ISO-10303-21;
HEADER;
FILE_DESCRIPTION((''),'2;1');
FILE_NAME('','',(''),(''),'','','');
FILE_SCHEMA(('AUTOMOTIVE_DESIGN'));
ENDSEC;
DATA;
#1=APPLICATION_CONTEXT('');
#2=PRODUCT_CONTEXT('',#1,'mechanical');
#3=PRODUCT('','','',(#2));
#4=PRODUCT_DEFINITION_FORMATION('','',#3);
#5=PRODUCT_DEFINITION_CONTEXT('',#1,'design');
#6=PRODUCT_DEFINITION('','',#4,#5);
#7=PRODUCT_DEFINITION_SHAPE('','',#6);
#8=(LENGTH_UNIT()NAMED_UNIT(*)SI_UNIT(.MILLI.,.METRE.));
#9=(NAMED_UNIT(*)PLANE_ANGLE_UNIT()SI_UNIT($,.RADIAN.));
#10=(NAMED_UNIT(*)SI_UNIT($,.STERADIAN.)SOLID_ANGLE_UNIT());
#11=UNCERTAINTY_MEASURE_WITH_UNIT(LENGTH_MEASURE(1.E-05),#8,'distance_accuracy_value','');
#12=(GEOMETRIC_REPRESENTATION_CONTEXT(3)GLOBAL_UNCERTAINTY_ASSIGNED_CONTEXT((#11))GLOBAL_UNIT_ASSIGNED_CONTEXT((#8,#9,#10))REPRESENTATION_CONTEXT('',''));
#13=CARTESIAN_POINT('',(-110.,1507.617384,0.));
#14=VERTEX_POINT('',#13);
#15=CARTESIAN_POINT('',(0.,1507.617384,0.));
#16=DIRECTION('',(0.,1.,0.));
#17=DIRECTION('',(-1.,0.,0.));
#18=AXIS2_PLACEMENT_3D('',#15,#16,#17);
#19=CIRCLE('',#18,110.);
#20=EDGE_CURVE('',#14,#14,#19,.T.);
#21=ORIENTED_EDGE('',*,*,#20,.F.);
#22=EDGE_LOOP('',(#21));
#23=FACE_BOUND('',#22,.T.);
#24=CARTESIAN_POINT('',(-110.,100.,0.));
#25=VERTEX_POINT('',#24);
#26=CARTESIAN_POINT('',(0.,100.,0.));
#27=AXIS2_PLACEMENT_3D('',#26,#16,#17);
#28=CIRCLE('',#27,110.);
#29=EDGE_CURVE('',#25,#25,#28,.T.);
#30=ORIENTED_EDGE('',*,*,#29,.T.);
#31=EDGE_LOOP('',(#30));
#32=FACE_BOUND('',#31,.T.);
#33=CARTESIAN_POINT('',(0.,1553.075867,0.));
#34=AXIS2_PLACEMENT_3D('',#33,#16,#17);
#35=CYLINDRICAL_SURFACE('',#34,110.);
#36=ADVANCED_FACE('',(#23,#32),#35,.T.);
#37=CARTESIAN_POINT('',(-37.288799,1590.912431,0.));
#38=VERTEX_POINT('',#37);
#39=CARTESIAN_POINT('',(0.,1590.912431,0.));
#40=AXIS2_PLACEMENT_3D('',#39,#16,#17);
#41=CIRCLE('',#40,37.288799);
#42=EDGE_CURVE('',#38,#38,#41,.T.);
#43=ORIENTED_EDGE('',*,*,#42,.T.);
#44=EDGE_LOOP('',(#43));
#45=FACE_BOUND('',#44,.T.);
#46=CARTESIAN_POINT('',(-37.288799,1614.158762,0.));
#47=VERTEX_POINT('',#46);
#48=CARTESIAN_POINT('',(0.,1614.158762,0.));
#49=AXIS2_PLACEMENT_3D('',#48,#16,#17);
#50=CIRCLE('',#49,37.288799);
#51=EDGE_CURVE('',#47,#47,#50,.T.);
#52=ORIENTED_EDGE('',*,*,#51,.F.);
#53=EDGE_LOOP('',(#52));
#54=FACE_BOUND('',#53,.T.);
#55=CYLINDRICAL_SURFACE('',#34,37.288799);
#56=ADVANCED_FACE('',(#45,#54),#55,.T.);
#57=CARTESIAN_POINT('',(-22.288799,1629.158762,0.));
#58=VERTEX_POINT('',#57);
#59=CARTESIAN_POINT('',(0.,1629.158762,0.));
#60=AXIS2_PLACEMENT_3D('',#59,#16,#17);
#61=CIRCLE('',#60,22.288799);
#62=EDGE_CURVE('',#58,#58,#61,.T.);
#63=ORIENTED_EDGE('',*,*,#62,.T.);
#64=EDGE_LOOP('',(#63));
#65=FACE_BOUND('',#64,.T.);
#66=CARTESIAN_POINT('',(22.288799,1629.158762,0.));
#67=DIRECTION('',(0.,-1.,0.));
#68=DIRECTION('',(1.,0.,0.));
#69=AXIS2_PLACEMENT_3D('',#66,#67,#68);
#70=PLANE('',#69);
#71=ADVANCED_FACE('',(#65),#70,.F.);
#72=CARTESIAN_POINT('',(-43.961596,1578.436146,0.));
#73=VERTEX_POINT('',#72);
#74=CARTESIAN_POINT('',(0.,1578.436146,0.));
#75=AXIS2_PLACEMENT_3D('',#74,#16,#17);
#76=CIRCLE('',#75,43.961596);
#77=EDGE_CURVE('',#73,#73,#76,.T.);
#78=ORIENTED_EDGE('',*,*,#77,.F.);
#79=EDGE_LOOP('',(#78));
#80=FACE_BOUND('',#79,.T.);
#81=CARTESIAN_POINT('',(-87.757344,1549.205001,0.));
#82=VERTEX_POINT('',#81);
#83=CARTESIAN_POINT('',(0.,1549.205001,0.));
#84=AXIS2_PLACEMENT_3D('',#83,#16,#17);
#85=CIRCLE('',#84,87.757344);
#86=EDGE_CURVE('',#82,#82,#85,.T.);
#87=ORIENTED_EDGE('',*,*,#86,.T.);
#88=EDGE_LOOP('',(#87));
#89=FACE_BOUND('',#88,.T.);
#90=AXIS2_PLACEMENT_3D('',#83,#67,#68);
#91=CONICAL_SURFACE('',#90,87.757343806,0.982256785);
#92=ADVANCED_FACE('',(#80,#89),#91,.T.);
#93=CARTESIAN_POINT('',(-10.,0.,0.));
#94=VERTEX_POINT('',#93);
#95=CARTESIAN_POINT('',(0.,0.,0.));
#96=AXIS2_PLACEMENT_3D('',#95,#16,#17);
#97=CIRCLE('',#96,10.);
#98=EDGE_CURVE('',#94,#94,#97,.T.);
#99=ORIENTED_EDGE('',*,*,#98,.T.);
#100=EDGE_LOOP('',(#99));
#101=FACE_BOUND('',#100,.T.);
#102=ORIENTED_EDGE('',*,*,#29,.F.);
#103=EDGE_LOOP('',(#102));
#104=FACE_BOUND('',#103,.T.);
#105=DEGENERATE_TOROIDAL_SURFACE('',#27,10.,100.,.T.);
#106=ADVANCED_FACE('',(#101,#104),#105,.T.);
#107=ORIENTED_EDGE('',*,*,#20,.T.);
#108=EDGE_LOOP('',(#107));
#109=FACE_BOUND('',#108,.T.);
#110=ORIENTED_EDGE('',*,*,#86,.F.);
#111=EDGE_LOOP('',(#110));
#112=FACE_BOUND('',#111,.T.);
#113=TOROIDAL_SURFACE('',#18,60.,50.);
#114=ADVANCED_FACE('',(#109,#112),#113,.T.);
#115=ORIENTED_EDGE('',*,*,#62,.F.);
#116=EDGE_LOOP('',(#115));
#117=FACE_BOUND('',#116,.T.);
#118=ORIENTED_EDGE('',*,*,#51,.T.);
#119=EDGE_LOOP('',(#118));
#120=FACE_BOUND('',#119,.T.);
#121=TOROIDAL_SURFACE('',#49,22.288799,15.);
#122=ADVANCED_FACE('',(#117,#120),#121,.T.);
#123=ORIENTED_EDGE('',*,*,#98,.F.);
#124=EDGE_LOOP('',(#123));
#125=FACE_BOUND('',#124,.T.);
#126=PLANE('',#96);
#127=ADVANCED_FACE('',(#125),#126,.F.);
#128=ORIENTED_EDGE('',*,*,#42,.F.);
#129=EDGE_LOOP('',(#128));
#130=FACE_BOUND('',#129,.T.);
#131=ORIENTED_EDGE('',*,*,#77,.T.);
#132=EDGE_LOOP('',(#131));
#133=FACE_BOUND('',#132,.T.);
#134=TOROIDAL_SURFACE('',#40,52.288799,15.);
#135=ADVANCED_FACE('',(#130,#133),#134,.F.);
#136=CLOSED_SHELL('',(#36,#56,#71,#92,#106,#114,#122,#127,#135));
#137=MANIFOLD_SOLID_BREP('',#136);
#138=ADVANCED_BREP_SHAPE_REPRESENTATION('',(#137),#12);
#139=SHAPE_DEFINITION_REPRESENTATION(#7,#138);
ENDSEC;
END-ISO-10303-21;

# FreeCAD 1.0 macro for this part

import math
import FreeCAD as App
import Part
import Sketcher
from FreeCAD import Vector

doc = App.newDocument("Part")
body = doc.addObject("PartDesign::Body", "Body")

# Sketch on XY plane
sketch1 = body.newObject("Sketcher::SketchObject", "Sketch")
sketch1.AttachmentSupport = (doc.getObject("XY_Plane"), [""])
sketch1.MapMode = "FlatFace"
sketch1.addGeometry([
    Part.LineSegment(Vector(0, 0, 0), Vector(10, 0, 0)),  # 0
    Part.ArcOfCircle(Part.Circle(Vector(10, 100, 0), Vector(0, 0, 1), 100), math.radians(-90), math.radians(0)),  # 1
    Part.LineSegment(Vector(110, 100, 0), Vector(110, 1508, 0)),  # 2
    Part.ArcOfCircle(Part.Circle(Vector(60, 1508, 0), Vector(0, 0, 1), 50), math.radians(0), math.radians(56)),  # 3
    Part.LineSegment(Vector(88, 1549, 0), Vector(44, 1578, 0)),  # 4
    Part.ArcOfCircle(Part.Circle(Vector(52, 1591, 0), Vector(0, 0, 1), 15), math.radians(180), math.radians(236)),  # 5
    Part.LineSegment(Vector(37, 1591, 0), Vector(37, 1614, 0)),  # 6
    Part.ArcOfCircle(Part.Circle(Vector(22, 1614, 0), Vector(0, 0, 1), 15), math.radians(0), math.radians(90)),  # 7
    Part.LineSegment(Vector(22, 1629, 0), Vector(0, 1629, 0)),  # 8
    Part.LineSegment(Vector(0, 1629, 0), Vector(0, 0, 0)),  # 9
], False)
sketch1.addConstraint([
    Sketcher.Constraint("Tangent", 0, 2, 1, 1),
    Sketcher.Constraint("Tangent", 1, 2, 2, 1),
    Sketcher.Constraint("Tangent", 2, 2, 3, 1),
    Sketcher.Constraint("Tangent", 3, 2, 4, 1),
    Sketcher.Constraint("Tangent", 4, 2, 5, 2),
    Sketcher.Constraint("Tangent", 5, 1, 6, 1),
    Sketcher.Constraint("Tangent", 6, 2, 7, 1),
    Sketcher.Constraint("Tangent", 7, 2, 8, 1),
    Sketcher.Constraint("Coincident", 8, 2, 9, 1),
    Sketcher.Constraint("Coincident", 9, 2, 0, 1),
    Sketcher.Constraint("Horizontal", 0),
    Sketcher.Constraint("Vertical", 2),
    Sketcher.Constraint("Vertical", 6),
    Sketcher.Constraint("Horizontal", 8),
    Sketcher.Constraint("Vertical", 9),
    Sketcher.Constraint("Coincident", 9, 2, -1, 1),
    Sketcher.Constraint("Equal", 5, 7),
    Sketcher.Constraint("Radius", 1, 100.0),
    Sketcher.Constraint("Radius", 3, 50.0),
    Sketcher.Constraint("Radius", 5, 15.0),
    Sketcher.Constraint("DistanceX", 0, 1, 0, 2, 10.0),
    Sketcher.Constraint("DistanceX", 8, 2, 8, 1, 22.288799),
    Sketcher.Constraint("DistanceY", -1, 1, 3, 2, 1549.205001),
    Sketcher.Constraint("DistanceY", 6, 1, 6, 2, 23.246331),
    Sketcher.Constraint("DistanceY", 9, 2, 9, 1, 1629.158762),
])
revolution = body.newObject("PartDesign::Revolution", "Revolution")
revolution.Profile = sketch1
revolution.ReferenceAxis = (sketch1, ["V_Axis"])
revolution.Angle = 360

doc.recompute()
